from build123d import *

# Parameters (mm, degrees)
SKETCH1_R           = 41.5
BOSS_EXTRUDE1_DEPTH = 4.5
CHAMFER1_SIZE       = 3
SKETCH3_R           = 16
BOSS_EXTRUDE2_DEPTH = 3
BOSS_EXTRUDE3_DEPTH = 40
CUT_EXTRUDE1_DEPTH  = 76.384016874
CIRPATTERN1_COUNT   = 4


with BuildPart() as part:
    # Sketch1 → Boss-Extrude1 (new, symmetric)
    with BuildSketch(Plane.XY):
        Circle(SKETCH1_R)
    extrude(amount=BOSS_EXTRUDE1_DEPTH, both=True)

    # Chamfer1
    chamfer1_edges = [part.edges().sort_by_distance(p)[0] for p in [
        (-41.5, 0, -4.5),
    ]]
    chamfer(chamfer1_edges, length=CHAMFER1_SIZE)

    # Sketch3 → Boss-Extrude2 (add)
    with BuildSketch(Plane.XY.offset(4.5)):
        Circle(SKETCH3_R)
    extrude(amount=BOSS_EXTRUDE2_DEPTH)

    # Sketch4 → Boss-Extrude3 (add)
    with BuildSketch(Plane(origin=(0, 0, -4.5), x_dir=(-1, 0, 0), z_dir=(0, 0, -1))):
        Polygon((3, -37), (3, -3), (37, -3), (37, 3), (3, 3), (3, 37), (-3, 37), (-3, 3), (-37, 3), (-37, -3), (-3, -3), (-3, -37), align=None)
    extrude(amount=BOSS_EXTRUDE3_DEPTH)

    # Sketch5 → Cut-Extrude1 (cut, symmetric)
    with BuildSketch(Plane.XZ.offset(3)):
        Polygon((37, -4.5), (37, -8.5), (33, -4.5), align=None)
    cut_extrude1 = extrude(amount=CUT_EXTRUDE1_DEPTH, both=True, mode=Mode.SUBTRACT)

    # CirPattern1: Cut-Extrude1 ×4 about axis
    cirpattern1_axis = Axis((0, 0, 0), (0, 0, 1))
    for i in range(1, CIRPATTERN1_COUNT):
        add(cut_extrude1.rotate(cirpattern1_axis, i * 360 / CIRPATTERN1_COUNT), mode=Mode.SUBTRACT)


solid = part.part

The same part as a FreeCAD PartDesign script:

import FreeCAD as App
import Part
import Sketcher
from FreeCAD import Vector


def edges_at(feature, points):
    """Names of the edges that pass closest to the given points."""
    edges = feature.Shape.Edges
    near = lambda p: min(range(len(edges)), key=lambda i: edges[i].distToShape(Part.Vertex(*p))[0])
    return sorted({f"Edge{near(p) + 1}" for p in points})


def add_polygon(sketch, points):
    """Adds a closed chain of lines whose ends are joined by coincident constraints."""
    first, n = sketch.GeometryCount, len(points)
    for a, b in zip(points, points[1:] + points[:1]):
        sketch.addGeometry(Part.LineSegment(App.Vector(*a, 0), App.Vector(*b, 0)), False)
    for i in range(n):
        sketch.addConstraint(Sketcher.Constraint("Coincident", first + i, 2, first + (i + 1) % n, 1))

doc = App.newDocument("Part")
body = doc.addObject("PartDesign::Body", "Body")

# Sketch on XY plane
sketch1 = body.newObject("Sketcher::SketchObject", "Sketch")
sketch1.AttachmentSupport = (doc.getObject("XY_Plane"), [""])
sketch1.MapMode = "FlatFace"
sketch1.addGeometry(Part.Circle(Vector(0, 0, 0), Vector(0, 0, 1), 41.5), False)
sketch1.addConstraint([
    Sketcher.Constraint("Coincident", 0, 3, -1, 1),
    Sketcher.Constraint("Diameter", 0, 83.0),
])
pad1 = body.newObject("PartDesign::Pad", "Pad")
pad1.Profile = sketch1
pad1.Length = 9
pad1.Midplane = True
doc.recompute()

chamfer = body.newObject("PartDesign::Chamfer", "Chamfer")
chamfer.Base = (pad1, edges_at(pad1, [(-41.5, 0, -4.5)]))
chamfer.Size = 3

# Sketch on XY plane
sketch2 = body.newObject("Sketcher::SketchObject", "Sketch001")
sketch2.AttachmentSupport = (doc.getObject("XY_Plane"), [""])
sketch2.MapMode = "FlatFace"
sketch2.AttachmentOffset = App.Placement(Vector(0, 0, 4.5), App.Rotation())
sketch2.addGeometry(Part.Circle(Vector(0, 0, 0), Vector(0, 0, 1), 16), False)
sketch2.addConstraint([
    Sketcher.Constraint("Coincident", 0, 3, -1, 1),
    Sketcher.Constraint("Diameter", 0, 32.0),
])
pad2 = body.newObject("PartDesign::Pad", "Pad001")
pad2.Profile = sketch2
pad2.Length = 3

# Sketch on XY plane
sketch3 = body.newObject("Sketcher::SketchObject", "Sketch002")
sketch3.AttachmentSupport = (doc.getObject("XY_Plane"), [""])
sketch3.MapMode = "FlatFace"
sketch3.AttachmentOffset = App.Placement(Vector(0, 0, -4.5), App.Rotation())
add_polygon(sketch3, [(-3, -37), (-3, -3), (-37, -3), (-37, 3), (-3, 3), (-3, 37), (3, 37), (3, 3), (37, 3), (37, -3), (3, -3), (3, -37)])  # lines 0-11
sketch3.addConstraint([
    Sketcher.Constraint("Vertical", 0),
    Sketcher.Constraint("Horizontal", 1),
    Sketcher.Constraint("Vertical", 2),
    Sketcher.Constraint("Horizontal", 3),
    Sketcher.Constraint("Vertical", 4),
    Sketcher.Constraint("Horizontal", 5),
    Sketcher.Constraint("Vertical", 6),
    Sketcher.Constraint("Horizontal", 7),
    Sketcher.Constraint("Vertical", 8),
    Sketcher.Constraint("Horizontal", 9),
    Sketcher.Constraint("Vertical", 10),
    Sketcher.Constraint("Horizontal", 11),
    Sketcher.Constraint("Symmetric", 0, 2, 6, 2, -1, 1),
    Sketcher.Constraint("Symmetric", 2, 2, 8, 2, -1, 1),
    Sketcher.Constraint("Symmetric", 4, 2, 10, 2, -1, 1),
    Sketcher.Constraint("Symmetric", 3, 2, 6, 2, -2),
    Sketcher.Constraint("Equal", 9, 0),
    Sketcher.Constraint("Equal", 11, 2),
    Sketcher.Constraint("DistanceX", 1, 2, 1, 1, 34.0),
    Sketcher.Constraint("DistanceX", 5, 1, 5, 2, 6.0),
])
pad3 = body.newObject("PartDesign::Pad", "Pad002")
pad3.Profile = sketch3
pad3.Length = 40
pad3.Reversed = True

# Sketch on XZ plane
sketch4 = body.newObject("Sketcher::SketchObject", "Sketch003")
sketch4.AttachmentSupport = (doc.getObject("XZ_Plane"), [""])
sketch4.MapMode = "FlatFace"
sketch4.AttachmentOffset = App.Placement(Vector(0, 0, 3), App.Rotation())
add_polygon(sketch4, [(37, -8.5), (37, -4.5), (33, -4.5)])  # lines 0-2
sketch4.addConstraint([
    Sketcher.Constraint("Vertical", 0),
    Sketcher.Constraint("Horizontal", 1),
    Sketcher.Constraint("Equal", 1, 0),
    Sketcher.Constraint("DistanceX", 1, 2, 1, 1, 4.0),
    Sketcher.Constraint("DistanceX", -1, 1, 0, 2, 37.0),
    Sketcher.Constraint("DistanceY", 0, 2, -1, 1, 4.5),
])
pocket1 = body.newObject("PartDesign::Pocket", "Pocket")
pocket1.Profile = sketch4
pocket1.Length = 152.768034
pocket1.Midplane = True
doc.recompute()

polarpattern = body.newObject("PartDesign::PolarPattern", "PolarPattern")
polarpattern.Originals = [pocket1]
polarpattern.Axis = (doc.getObject("Z_Axis"), [""])
polarpattern.Angle = 360
polarpattern.Occurrences = 4
body.Tip = polarpattern

doc.recompute()
